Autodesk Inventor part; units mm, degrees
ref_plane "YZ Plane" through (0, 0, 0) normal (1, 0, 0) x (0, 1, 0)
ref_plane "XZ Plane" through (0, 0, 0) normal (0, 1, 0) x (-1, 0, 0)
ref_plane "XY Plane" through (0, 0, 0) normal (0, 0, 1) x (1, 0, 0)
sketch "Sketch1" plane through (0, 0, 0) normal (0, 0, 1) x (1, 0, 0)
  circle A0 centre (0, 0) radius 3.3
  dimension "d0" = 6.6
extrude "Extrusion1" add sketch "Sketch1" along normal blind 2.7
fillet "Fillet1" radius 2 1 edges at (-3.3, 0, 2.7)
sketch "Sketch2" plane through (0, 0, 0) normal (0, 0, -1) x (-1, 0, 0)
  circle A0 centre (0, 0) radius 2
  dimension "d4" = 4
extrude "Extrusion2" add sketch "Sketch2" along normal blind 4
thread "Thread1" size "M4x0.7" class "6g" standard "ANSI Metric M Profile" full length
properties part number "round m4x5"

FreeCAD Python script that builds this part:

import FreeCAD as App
import Part
import Sketcher
Q = App.Units.Quantity


def edges_at(feature, points):
    """Names of the edges that pass closest to the given points."""
    edges = feature.Shape.Edges
    near = lambda p: min(range(len(edges)), key=lambda i: edges[i].distToShape(Part.Vertex(*p))[0])
    return sorted({f"Edge{near(p) + 1}" for p in points})

doc = App.newDocument("Part")
params = doc.addObject("Spreadsheet::Sheet", "Params")
for row, (alias, value) in enumerate([
    ("sketch1_diameter", "6.6 mm"),
    ("pad1_length", "2.7 mm"),
    ("fillet_radius", "2 mm"),
    ("sketch2_diameter", "4 mm"),
    ("pad2_length", "4 mm"),
], start=1):
    params.set(f"A{row}", alias)
    params.set(f"B{row}", "=" + value)
    params.setAlias(f"B{row}", alias)

body = doc.addObject("PartDesign::Body", "Body")

# Sketch on XY plane
sketch1 = body.newObject("Sketcher::SketchObject", "Sketch")
sketch1.AttachmentSupport = (doc.getObject("XY_Plane"), [""])
sketch1.MapMode = "FlatFace"
sketch1.addGeometry(Part.Circle(App.Vector(0, 0, 0), App.Vector(0, 0, 1), 3.3), False)
sketch1.addConstraint(Sketcher.Constraint("Coincident", 0, 3, -1, 1))
sketch1.addConstraint(Sketcher.Constraint("Diameter", 0, Q("6.6 mm")))
sketch1.setExpression("Constraints[1]", "Params.sketch1_diameter")
pad1 = body.newObject("PartDesign::Pad", "Pad")
pad1.Profile = sketch1
pad1.setExpression("Length", "Params.pad1_length")
doc.recompute()

fillet = body.newObject("PartDesign::Fillet", "Fillet")
fillet.Base = (pad1, edges_at(pad1, [(-3.3, 0, 2.7)]))
fillet.setExpression("Radius", "Params.fillet_radius")

# Sketch on XY plane
sketch2 = body.newObject("Sketcher::SketchObject", "Sketch001")
sketch2.AttachmentSupport = (doc.getObject("XY_Plane"), [""])
sketch2.MapMode = "FlatFace"
sketch2.addGeometry(Part.Circle(App.Vector(0, 0, 0), App.Vector(0, 0, 1), 2), False)
sketch2.addConstraint(Sketcher.Constraint("Coincident", 0, 3, -1, 1))
sketch2.addConstraint(Sketcher.Constraint("Diameter", 0, Q("4 mm")))
sketch2.setExpression("Constraints[1]", "Params.sketch2_diameter")
pad2 = body.newObject("PartDesign::Pad", "Pad001")
pad2.Profile = sketch2
pad2.setExpression("Length", "Params.pad2_length")
pad2.Reversed = True

doc.recompute()
